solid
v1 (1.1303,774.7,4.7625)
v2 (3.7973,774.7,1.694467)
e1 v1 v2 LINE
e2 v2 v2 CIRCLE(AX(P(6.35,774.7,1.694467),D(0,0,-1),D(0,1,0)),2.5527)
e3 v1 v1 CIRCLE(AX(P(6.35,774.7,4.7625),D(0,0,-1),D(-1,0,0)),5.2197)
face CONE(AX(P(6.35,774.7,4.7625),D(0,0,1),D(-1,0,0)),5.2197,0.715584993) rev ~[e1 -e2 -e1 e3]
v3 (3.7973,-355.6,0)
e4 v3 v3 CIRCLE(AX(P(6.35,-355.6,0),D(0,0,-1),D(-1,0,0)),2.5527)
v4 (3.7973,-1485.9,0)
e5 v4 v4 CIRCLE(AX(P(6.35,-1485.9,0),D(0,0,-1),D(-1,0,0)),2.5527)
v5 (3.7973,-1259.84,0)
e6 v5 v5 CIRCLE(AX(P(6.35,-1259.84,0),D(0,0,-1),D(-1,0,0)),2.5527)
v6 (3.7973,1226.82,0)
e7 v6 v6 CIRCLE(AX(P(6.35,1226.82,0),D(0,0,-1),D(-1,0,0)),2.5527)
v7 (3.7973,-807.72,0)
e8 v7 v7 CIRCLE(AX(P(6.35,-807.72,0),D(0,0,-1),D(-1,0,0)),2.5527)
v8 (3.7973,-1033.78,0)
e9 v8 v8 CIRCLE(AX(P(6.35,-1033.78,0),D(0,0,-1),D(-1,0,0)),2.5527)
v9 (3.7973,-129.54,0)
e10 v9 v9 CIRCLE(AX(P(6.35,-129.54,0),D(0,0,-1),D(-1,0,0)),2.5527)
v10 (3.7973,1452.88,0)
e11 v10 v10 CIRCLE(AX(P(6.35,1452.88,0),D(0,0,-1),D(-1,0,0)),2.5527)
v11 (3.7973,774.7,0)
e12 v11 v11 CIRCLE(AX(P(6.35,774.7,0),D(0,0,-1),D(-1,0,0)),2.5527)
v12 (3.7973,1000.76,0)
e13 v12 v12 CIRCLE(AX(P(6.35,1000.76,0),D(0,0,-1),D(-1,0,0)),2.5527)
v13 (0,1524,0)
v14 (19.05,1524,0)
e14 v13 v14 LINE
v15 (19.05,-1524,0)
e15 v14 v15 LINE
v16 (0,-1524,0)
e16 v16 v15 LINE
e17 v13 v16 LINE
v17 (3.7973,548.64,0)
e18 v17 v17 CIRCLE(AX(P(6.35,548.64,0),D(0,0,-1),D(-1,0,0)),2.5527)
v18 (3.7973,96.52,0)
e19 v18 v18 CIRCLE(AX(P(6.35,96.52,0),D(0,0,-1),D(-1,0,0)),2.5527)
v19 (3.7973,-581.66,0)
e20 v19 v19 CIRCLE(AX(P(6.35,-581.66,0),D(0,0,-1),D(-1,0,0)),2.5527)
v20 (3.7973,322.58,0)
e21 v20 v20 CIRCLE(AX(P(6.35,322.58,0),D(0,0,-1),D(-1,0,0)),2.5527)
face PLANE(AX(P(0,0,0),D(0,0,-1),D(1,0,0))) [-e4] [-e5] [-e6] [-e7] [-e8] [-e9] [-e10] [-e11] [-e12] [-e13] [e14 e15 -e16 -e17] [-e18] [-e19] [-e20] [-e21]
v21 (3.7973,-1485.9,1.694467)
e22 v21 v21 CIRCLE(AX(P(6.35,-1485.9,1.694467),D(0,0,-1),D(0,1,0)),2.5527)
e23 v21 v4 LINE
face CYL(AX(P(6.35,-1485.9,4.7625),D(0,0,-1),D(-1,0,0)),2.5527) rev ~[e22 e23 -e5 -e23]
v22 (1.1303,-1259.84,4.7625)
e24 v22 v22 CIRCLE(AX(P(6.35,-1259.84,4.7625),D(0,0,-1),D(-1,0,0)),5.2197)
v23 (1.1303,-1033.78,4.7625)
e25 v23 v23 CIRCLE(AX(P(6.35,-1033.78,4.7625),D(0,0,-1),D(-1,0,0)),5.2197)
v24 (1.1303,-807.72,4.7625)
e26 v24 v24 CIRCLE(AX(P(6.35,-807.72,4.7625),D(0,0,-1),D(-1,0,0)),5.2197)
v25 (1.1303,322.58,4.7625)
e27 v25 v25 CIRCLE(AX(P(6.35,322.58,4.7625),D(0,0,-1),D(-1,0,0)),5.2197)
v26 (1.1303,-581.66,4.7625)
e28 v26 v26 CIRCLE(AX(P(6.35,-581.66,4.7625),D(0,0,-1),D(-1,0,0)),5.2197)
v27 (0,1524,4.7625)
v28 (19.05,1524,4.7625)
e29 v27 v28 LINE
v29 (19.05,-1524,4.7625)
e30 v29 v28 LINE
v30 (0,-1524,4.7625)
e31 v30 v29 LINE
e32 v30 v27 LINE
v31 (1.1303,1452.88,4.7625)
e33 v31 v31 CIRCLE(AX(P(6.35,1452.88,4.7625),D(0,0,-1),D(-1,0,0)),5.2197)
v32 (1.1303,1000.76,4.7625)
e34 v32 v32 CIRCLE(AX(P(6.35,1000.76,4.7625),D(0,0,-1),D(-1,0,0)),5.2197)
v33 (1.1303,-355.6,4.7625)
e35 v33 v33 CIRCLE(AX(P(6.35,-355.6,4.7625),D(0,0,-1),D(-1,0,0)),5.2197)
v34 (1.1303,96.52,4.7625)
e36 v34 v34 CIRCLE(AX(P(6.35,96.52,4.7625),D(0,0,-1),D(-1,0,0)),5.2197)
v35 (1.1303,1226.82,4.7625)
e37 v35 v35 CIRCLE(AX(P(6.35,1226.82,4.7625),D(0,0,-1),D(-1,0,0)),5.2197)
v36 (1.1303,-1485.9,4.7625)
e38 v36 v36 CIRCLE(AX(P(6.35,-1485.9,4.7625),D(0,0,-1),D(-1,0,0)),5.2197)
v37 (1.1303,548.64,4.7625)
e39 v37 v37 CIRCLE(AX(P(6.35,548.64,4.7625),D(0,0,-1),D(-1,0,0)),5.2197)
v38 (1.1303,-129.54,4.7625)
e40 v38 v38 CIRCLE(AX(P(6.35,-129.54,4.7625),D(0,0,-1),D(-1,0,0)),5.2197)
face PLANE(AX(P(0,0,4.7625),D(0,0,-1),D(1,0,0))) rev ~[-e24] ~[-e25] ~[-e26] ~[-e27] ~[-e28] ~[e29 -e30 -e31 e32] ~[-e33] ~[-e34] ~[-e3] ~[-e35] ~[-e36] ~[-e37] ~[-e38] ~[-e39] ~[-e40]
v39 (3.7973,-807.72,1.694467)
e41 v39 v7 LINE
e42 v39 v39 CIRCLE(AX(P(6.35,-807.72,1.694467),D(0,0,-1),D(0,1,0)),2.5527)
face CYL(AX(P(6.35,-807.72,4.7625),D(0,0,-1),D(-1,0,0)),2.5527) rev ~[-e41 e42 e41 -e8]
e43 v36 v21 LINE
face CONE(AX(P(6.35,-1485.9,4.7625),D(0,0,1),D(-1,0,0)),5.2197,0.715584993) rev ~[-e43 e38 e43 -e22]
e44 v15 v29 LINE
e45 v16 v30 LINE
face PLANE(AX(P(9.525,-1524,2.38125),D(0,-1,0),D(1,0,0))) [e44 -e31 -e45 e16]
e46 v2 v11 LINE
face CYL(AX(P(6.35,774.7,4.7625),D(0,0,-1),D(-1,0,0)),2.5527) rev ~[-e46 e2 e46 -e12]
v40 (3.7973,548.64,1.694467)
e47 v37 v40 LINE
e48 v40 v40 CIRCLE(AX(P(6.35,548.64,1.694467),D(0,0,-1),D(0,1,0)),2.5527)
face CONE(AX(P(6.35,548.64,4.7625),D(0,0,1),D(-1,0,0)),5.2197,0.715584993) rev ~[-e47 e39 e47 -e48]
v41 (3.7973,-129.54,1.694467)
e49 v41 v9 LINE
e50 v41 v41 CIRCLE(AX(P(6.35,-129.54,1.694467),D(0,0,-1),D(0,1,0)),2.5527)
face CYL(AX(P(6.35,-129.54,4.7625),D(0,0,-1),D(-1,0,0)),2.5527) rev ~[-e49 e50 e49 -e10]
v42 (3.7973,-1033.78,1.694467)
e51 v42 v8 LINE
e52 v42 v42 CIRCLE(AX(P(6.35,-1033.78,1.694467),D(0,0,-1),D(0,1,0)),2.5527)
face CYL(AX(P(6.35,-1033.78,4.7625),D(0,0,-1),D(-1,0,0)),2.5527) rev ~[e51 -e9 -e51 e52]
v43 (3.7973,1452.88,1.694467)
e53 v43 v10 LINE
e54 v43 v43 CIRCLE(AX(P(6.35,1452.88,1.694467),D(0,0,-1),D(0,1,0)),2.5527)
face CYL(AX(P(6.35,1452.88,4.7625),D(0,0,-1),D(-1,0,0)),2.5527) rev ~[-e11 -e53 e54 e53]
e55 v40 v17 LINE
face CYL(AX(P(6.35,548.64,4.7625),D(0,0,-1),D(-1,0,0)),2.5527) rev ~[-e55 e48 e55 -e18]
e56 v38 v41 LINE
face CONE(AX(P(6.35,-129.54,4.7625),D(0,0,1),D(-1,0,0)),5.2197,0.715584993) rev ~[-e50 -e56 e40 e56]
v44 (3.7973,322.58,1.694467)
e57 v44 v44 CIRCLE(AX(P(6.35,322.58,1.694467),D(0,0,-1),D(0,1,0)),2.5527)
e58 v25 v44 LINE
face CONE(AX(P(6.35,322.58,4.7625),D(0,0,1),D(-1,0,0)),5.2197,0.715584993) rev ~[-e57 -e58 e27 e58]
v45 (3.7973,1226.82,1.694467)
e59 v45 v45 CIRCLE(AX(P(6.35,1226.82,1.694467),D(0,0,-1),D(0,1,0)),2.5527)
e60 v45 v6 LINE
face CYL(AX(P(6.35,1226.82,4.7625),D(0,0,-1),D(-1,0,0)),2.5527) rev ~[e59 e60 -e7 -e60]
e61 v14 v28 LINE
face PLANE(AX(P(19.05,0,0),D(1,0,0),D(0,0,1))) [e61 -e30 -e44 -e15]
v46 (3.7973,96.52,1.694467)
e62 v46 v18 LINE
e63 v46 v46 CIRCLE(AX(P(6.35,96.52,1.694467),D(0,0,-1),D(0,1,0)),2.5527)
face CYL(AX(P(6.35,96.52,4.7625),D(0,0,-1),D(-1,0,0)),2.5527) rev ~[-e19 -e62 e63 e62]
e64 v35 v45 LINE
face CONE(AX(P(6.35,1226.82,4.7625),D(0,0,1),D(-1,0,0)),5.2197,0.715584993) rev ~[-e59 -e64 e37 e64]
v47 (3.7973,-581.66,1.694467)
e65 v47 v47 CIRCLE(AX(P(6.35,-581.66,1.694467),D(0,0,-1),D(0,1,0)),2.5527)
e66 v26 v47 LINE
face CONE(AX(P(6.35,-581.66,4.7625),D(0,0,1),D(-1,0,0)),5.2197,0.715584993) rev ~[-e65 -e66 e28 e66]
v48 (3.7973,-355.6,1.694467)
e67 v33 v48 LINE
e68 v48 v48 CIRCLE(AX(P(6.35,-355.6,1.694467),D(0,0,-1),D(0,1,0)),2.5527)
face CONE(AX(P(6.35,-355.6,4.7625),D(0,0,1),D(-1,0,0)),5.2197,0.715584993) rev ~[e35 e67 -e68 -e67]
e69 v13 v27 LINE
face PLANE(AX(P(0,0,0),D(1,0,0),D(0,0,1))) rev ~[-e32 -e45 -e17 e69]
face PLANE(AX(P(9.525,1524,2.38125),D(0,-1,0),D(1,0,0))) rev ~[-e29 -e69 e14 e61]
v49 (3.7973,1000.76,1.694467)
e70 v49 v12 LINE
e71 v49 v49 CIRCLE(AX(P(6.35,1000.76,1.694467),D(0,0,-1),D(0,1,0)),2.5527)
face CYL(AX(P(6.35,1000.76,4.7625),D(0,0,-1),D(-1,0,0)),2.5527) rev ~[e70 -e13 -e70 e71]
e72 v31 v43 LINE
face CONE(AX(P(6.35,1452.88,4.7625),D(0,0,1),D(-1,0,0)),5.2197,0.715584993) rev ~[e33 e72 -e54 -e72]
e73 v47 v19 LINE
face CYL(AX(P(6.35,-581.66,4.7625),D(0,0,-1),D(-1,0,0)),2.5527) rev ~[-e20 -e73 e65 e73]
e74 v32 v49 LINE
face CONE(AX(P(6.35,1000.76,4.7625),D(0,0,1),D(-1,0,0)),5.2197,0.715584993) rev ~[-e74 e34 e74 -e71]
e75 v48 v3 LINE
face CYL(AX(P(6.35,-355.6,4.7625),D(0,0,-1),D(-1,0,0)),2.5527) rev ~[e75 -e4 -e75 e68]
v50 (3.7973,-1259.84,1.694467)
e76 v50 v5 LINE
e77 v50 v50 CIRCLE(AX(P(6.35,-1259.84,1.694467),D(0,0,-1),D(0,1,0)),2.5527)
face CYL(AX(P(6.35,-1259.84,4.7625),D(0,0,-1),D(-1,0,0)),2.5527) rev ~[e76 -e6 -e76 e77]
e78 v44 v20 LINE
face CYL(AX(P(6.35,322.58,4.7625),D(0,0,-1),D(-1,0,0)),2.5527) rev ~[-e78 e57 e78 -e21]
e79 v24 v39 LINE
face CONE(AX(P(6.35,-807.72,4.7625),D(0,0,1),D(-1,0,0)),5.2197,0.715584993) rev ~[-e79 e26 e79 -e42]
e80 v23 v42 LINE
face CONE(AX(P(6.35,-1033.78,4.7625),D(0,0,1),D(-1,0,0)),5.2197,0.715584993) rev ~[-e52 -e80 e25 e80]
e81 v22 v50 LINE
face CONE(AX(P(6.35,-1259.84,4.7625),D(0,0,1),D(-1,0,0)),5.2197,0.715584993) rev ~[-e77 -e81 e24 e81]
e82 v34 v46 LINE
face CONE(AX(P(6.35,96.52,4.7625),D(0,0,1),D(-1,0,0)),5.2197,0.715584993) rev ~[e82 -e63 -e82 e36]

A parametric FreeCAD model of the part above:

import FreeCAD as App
import Part
import Sketcher
from FreeCAD import Vector
Q = App.Units.Quantity

doc = App.newDocument("Part")
body = doc.addObject("PartDesign::Body", "Body")

# Sketch on XZ plane
sketch1 = body.newObject("Sketcher::SketchObject", "Sketch")
sketch1.AttachmentSupport = (doc.getObject("XZ_Plane"), [""])
sketch1.MapMode = "FlatFace"
sketch1.addGeometry(Part.LineSegment(Vector(0, 4.8, 0), Vector(0, 0, 0)), False)
sketch1.addGeometry(Part.LineSegment(Vector(0, 0, 0), Vector(19.1, 0, 0)), False)
sketch1.addGeometry(Part.LineSegment(Vector(19.1, 0, 0), Vector(19.1, 4.8, 0)), False)
sketch1.addGeometry(Part.LineSegment(Vector(19.1, 4.8, 0), Vector(0, 4.8, 0)), False)
sketch1.addConstraint(Sketcher.Constraint("Coincident", 0, 2, 1, 1))
sketch1.addConstraint(Sketcher.Constraint("Coincident", 1, 2, 2, 1))
sketch1.addConstraint(Sketcher.Constraint("Coincident", 2, 2, 3, 1))
sketch1.addConstraint(Sketcher.Constraint("Coincident", 3, 2, 0, 1))
sketch1.addConstraint(Sketcher.Constraint("Vertical", 0))
sketch1.addConstraint(Sketcher.Constraint("Horizontal", 1))
sketch1.addConstraint(Sketcher.Constraint("Vertical", 2))
sketch1.addConstraint(Sketcher.Constraint("Horizontal", 3))
sketch1.addConstraint(Sketcher.Constraint("Coincident", 0, 2, -1, 1))
sketch1.addConstraint(Sketcher.Constraint("DistanceX", 1, 1, 1, 2, Q("0.75 in")))
sketch1.addConstraint(Sketcher.Constraint("DistanceY", 0, 2, 0, 1, Q("0.1875 in")))
pad1 = body.newObject("PartDesign::Pad", "Pad")
pad1.Profile = sketch1
pad1.Length = Q("120 in")
pad1.Midplane = True

# Sketch on XY plane
sketch2 = body.newObject("Sketcher::SketchObject", "Sketch001")
sketch2.AttachmentSupport = (doc.getObject("XY_Plane"), [""])
sketch2.MapMode = "FlatFace"
sketch2.AttachmentOffset = App.Placement(Vector(0, 0, 0.1875 * 25.4), App.Rotation())
sketch2.addGeometry(Part.Circle(Vector(6.3, 1452.9, 0), Vector(0, 0, 1), 2.6), False)
sketch2.addGeometry(Part.Circle(Vector(6.3, 1226.8, 0), Vector(0, 0, 1), 2.6), False)
sketch2.addGeometry(Part.Circle(Vector(6.3, 774.7, 0), Vector(0, 0, 1), 2.6), False)
sketch2.addGeometry(Part.Circle(Vector(6.3, 1000.8, 0), Vector(0, 0, 1), 2.6), False)
sketch2.addGeometry(Part.Circle(Vector(6.3, -807.7, 0), Vector(0, 0, 1), 2.6), False)
sketch2.addGeometry(Part.Circle(Vector(6.3, -581.7, 0), Vector(0, 0, 1), 2.6), False)
sketch2.addGeometry(Part.Circle(Vector(6.3, -355.6, 0), Vector(0, 0, 1), 2.6), False)
sketch2.addGeometry(Part.Circle(Vector(6.3, 548.6, 0), Vector(0, 0, 1), 2.6), False)
sketch2.addGeometry(Part.Circle(Vector(6.3, -129.5, 0), Vector(0, 0, 1), 2.6), False)
sketch2.addGeometry(Part.Circle(Vector(6.3, 96.5, 0), Vector(0, 0, 1), 2.6), False)
sketch2.addGeometry(Part.Circle(Vector(6.3, 322.6, 0), Vector(0, 0, 1), 2.6), False)
sketch2.addGeometry(Part.Circle(Vector(31.8, -1485.9, 0), Vector(0, 0, 1), 2.6), False)
sketch2.addGeometry(Part.Circle(Vector(6.3, -1485.9, 0), Vector(0, 0, 1), 2.6), False)
sketch2.addGeometry(Part.Circle(Vector(6.3, -1259.8, 0), Vector(0, 0, 1), 2.6), False)
sketch2.addGeometry(Part.Circle(Vector(6.3, -1033.8, 0), Vector(0, 0, 1), 2.6), False)
sketch2.addConstraint(Sketcher.Constraint("Equal", 0, 1))
sketch2.addConstraint(Sketcher.Constraint("Equal", 1, 2))
sketch2.addConstraint(Sketcher.Constraint("Equal", 2, 3))
sketch2.addConstraint(Sketcher.Constraint("Equal", 3, 4))
sketch2.addConstraint(Sketcher.Constraint("Equal", 4, 5))
sketch2.addConstraint(Sketcher.Constraint("Equal", 5, 6))
sketch2.addConstraint(Sketcher.Constraint("Equal", 6, 7))
sketch2.addConstraint(Sketcher.Constraint("Equal", 7, 8))
sketch2.addConstraint(Sketcher.Constraint("Equal", 8, 9))
sketch2.addConstraint(Sketcher.Constraint("Equal", 9, 10))
sketch2.addConstraint(Sketcher.Constraint("Equal", 10, 11))
sketch2.addConstraint(Sketcher.Constraint("Equal", 11, 12))
sketch2.addConstraint(Sketcher.Constraint("Equal", 12, 13))
sketch2.addConstraint(Sketcher.Constraint("Equal", 13, 14))
sketch2.addConstraint(Sketcher.Constraint("Horizontal", 11, 3, 12, 3))
sketch2.addConstraint(Sketcher.Constraint("Vertical", 0, 3, 1, 3))
sketch2.addConstraint(Sketcher.Constraint("Vertical", 1, 3, 2, 3))
sketch2.addConstraint(Sketcher.Constraint("Vertical", 2, 3, 3, 3))
sketch2.addConstraint(Sketcher.Constraint("Vertical", 3, 3, 4, 3))
sketch2.addConstraint(Sketcher.Constraint("Vertical", 4, 3, 5, 3))
sketch2.addConstraint(Sketcher.Constraint("Vertical", 5, 3, 6, 3))
sketch2.addConstraint(Sketcher.Constraint("Vertical", 6, 3, 7, 3))
sketch2.addConstraint(Sketcher.Constraint("Vertical", 7, 3, 8, 3))
sketch2.addConstraint(Sketcher.Constraint("Vertical", 8, 3, 9, 3))
sketch2.addConstraint(Sketcher.Constraint("Vertical", 9, 3, 10, 3))
sketch2.addConstraint(Sketcher.Constraint("Vertical", 10, 3, 12, 3))
sketch2.addConstraint(Sketcher.Constraint("Vertical", 12, 3, 13, 3))
sketch2.addConstraint(Sketcher.Constraint("Vertical", 13, 3, 14, 3))
sketch2.addConstraint(Sketcher.Constraint("Diameter", 0, Q("0.201 in")))
sketch2.addConstraint(Sketcher.Constraint("DistanceY", 6, 3, -1, 1, Q("14 in")))
sketch2.addConstraint(Sketcher.Constraint("DistanceY", 4, 3, 0, 3, Q("89 in")))
sketch2.addConstraint(Sketcher.Constraint("DistanceX", 4, 3, 11, 3, Q("1 in")))
sketch2.addConstraint(Sketcher.Constraint("DistanceY", -1, 1, 0, 3, Q("57.2 in")))
sketch2.addConstraint(Sketcher.Constraint("DistanceY", -1, 1, 1, 3, Q("48.3 in")))
sketch2.addConstraint(Sketcher.Constraint("DistanceY", -1, 1, 2, 3, Q("30.5 in")))
sketch2.addConstraint(Sketcher.Constraint("DistanceY", -1, 1, 3, 3, Q("39.4 in")))
sketch2.addConstraint(Sketcher.Constraint("DistanceY", 5, 3, -1, 1, Q("22.9 in")))
sketch2.addConstraint(Sketcher.Constraint("DistanceY", -1, 1, 7, 3, Q("21.6 in")))
sketch2.addConstraint(Sketcher.Constraint("DistanceY", 8, 3, -1, 1, Q("5.1 in")))
sketch2.addConstraint(Sketcher.Constraint("DistanceY", -1, 1, 9, 3, Q("3.8 in")))
sketch2.addConstraint(Sketcher.Constraint("DistanceY", -1, 1, 10, 3, Q("12.7 in")))
sketch2.addConstraint(Sketcher.Constraint("DistanceY", 11, 3, -1, 1, Q("58.5 in")))
sketch2.addConstraint(Sketcher.Constraint("DistanceY", 13, 3, -1, 1, Q("49.6 in")))
sketch2.addConstraint(Sketcher.Constraint("DistanceY", 14, 3, -1, 1, Q("40.7 in")))
sketch2.addConstraint(Sketcher.Constraint("DistanceX", -1, 1, 0, 3, Q("0.25 in")))
doc.recompute()
hole = body.newObject("PartDesign::Hole", "Hole")
hole.Profile = sketch2
hole.ThreadType = "None"
hole.Diameter = Q("0.201 in")
hole.DepthType = "ThroughAll"
hole.HoleCutType = "Countersink"
hole.HoleCutDiameter = Q("0.411 in")
hole.HoleCutCountersinkAngle = 82

doc.recompute()
